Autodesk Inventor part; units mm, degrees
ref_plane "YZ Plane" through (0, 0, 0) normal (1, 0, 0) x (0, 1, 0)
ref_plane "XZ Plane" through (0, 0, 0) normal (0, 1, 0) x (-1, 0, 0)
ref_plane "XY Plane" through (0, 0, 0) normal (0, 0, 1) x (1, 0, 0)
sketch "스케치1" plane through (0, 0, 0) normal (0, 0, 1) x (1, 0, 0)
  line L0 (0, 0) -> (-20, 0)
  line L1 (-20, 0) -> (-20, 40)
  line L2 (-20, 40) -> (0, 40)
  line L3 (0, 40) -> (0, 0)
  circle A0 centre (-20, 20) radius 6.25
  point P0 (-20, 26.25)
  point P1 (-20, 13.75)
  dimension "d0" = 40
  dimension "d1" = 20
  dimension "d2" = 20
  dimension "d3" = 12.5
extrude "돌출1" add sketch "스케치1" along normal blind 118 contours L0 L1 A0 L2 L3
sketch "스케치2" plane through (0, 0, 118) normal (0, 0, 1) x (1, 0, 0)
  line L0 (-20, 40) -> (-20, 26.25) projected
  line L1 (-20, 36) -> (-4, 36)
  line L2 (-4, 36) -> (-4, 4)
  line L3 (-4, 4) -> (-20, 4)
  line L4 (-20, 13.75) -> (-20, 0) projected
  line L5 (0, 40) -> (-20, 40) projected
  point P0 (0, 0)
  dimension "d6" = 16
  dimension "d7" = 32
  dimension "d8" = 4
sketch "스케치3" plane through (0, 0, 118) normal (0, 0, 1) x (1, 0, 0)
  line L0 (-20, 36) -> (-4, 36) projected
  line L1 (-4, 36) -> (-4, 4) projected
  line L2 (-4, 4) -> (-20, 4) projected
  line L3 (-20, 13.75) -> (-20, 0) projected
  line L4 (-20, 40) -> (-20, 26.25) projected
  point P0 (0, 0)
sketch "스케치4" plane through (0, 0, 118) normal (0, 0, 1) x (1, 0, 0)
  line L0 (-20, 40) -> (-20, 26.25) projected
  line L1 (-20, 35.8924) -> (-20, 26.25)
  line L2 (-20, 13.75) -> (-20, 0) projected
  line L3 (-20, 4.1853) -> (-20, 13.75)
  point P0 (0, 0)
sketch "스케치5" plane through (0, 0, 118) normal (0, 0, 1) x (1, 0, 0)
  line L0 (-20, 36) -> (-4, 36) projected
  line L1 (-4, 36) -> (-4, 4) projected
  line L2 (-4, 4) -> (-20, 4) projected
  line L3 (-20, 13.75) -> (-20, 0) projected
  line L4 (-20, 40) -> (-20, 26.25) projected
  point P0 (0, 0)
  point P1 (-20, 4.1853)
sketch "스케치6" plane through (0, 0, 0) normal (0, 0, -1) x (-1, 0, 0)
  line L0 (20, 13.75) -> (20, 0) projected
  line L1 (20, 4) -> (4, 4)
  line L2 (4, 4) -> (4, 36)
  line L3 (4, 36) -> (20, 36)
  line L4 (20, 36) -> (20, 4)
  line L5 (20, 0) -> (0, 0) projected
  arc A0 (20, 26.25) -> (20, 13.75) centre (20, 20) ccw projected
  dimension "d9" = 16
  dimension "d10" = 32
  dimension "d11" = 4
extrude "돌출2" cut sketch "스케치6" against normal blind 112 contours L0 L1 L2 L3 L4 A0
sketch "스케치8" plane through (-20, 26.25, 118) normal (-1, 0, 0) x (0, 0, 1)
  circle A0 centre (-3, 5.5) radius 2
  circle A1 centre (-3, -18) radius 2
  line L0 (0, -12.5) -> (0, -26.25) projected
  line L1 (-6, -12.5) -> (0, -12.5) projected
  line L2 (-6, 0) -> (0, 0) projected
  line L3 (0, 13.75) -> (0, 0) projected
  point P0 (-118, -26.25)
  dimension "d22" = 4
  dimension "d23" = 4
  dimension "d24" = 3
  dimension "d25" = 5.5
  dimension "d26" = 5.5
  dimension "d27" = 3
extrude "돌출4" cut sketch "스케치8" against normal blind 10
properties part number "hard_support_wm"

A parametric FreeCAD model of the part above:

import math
import FreeCAD as App
import Part
import Sketcher

doc = App.newDocument("Part")
params = doc.addObject("Spreadsheet::Sheet", "Params")
for row, (alias, value) in enumerate([
    ("sketch1_width", "20 mm"),
    ("sketch1_height", "40 mm"),
    ("sketch1_radius", "6.25 mm"),
    ("pad1_length", "118 mm"),
    ("sketch2_width", "16 mm"),
    ("sketch2_height", "32 mm"),
    ("sketch2_radius", "6.25 mm"),
    ("pocket1_length", "112 mm"),
    ("sketch3_diameter", "4 mm"),
    ("pocket2_length", "10 mm"),
], start=1):
    params.set(f"A{row}", alias)
    params.set(f"B{row}", "=" + value)
    params.setAlias(f"B{row}", alias)

body = doc.addObject("PartDesign::Body", "Body")

# Sketch on XY plane
sketch1 = body.newObject("Sketcher::SketchObject", "Sketch")
sketch1.AttachmentSupport = (doc.getObject("XY_Plane"), [""])
sketch1.MapMode = "FlatFace"
sketch1.addGeometry(Part.LineSegment(App.Vector(-20, 0, 0), App.Vector(0, 0, 0)), False)
sketch1.addGeometry(Part.LineSegment(App.Vector(0, 0, 0), App.Vector(0, 40, 0)), False)
sketch1.addGeometry(Part.LineSegment(App.Vector(0, 40, 0), App.Vector(-20, 40, 0)), False)
sketch1.addGeometry(Part.LineSegment(App.Vector(-20, 40, 0), App.Vector(-20, 26.25, 0)), False)
sketch1.addGeometry(Part.ArcOfCircle(Part.Circle(App.Vector(-20, 20, 0), App.Vector(0, 0, 1), 6.25), math.radians(-90), math.radians(90)), False)
sketch1.addGeometry(Part.LineSegment(App.Vector(-20, 13.75, 0), App.Vector(-20, 0, 0)), False)
sketch1.addConstraint(Sketcher.Constraint("Coincident", 0, 2, 1, 1))
sketch1.addConstraint(Sketcher.Constraint("Coincident", 1, 2, 2, 1))
sketch1.addConstraint(Sketcher.Constraint("Coincident", 2, 2, 3, 1))
sketch1.addConstraint(Sketcher.Constraint("Coincident", 3, 2, 4, 2))
sketch1.addConstraint(Sketcher.Constraint("Coincident", 4, 1, 5, 1))
sketch1.addConstraint(Sketcher.Constraint("Coincident", 5, 2, 0, 1))
sketch1.addConstraint(Sketcher.Constraint("Horizontal", 0))
sketch1.addConstraint(Sketcher.Constraint("Vertical", 1))
sketch1.addConstraint(Sketcher.Constraint("Horizontal", 2))
sketch1.addConstraint(Sketcher.Constraint("Vertical", 3))
sketch1.addConstraint(Sketcher.Constraint("Vertical", 5))
sketch1.addConstraint(Sketcher.Constraint("Coincident", 0, 2, -1, 1))
sketch1.addConstraint(Sketcher.Constraint("Vertical", 4, 3, 2, 2))
sketch1.addConstraint(Sketcher.Constraint("Vertical", 3, 2, 4, 1))
sketch1.addConstraint(Sketcher.Constraint("Equal", 3, 5))
sketch1.addConstraint(Sketcher.Constraint("DistanceX", 0, 1, 0, 2, 20.0))
sketch1.addConstraint(Sketcher.Constraint("DistanceY", 1, 1, 1, 2, 40.0))
sketch1.addConstraint(Sketcher.Constraint("Radius", 4, 6.25))
sketch1.setExpression("Constraints[15]", "Params.sketch1_width")
sketch1.setExpression("Constraints[16]", "Params.sketch1_height")
sketch1.setExpression("Constraints[17]", "Params.sketch1_radius")
pad1 = body.newObject("PartDesign::Pad", "Pad")
pad1.Profile = sketch1
pad1.setExpression("Length", "Params.pad1_length")

# Sketch on XY plane
sketch2 = body.newObject("Sketcher::SketchObject", "Sketch001")
sketch2.AttachmentSupport = (doc.getObject("XY_Plane"), [""])
sketch2.MapMode = "FlatFace"
sketch2.addGeometry(Part.LineSegment(App.Vector(-20, 4, 0), App.Vector(-20, 13.75, 0)), False)
sketch2.addGeometry(Part.ArcOfCircle(Part.Circle(App.Vector(-20, 20, 0), App.Vector(0, 0, 1), 6.25), math.radians(-90), math.radians(90)), False)
sketch2.addGeometry(Part.LineSegment(App.Vector(-20, 26.25, 0), App.Vector(-20, 36, 0)), False)
sketch2.addGeometry(Part.LineSegment(App.Vector(-20, 36, 0), App.Vector(-4, 36, 0)), False)
sketch2.addGeometry(Part.LineSegment(App.Vector(-4, 36, 0), App.Vector(-4, 4, 0)), False)
sketch2.addGeometry(Part.LineSegment(App.Vector(-4, 4, 0), App.Vector(-20, 4, 0)), False)
sketch2.addConstraint(Sketcher.Constraint("Coincident", 0, 2, 1, 1))
sketch2.addConstraint(Sketcher.Constraint("Coincident", 1, 2, 2, 1))
sketch2.addConstraint(Sketcher.Constraint("Coincident", 2, 2, 3, 1))
sketch2.addConstraint(Sketcher.Constraint("Coincident", 3, 2, 4, 1))
sketch2.addConstraint(Sketcher.Constraint("Coincident", 4, 2, 5, 1))
sketch2.addConstraint(Sketcher.Constraint("Coincident", 5, 2, 0, 1))
sketch2.addConstraint(Sketcher.Constraint("Vertical", 0))
sketch2.addConstraint(Sketcher.Constraint("Vertical", 2))
sketch2.addConstraint(Sketcher.Constraint("Horizontal", 3))
sketch2.addConstraint(Sketcher.Constraint("Vertical", 4))
sketch2.addConstraint(Sketcher.Constraint("Horizontal", 5))
sketch2.addConstraint(Sketcher.Constraint("Vertical", 1, 3, 0, 2))
sketch2.addConstraint(Sketcher.Constraint("Vertical", 0, 2, 1, 2))
sketch2.addConstraint(Sketcher.Constraint("Equal", 0, 2))
sketch2.addConstraint(Sketcher.Constraint("DistanceX", 3, 1, 3, 2, 16.0))
sketch2.addConstraint(Sketcher.Constraint("DistanceY", 4, 2, 4, 1, 32.0))
sketch2.addConstraint(Sketcher.Constraint("DistanceX", 3, 2, -1, 1, 4.0))
sketch2.addConstraint(Sketcher.Constraint("DistanceY", -1, 1, 4, 2, 4.0))
sketch2.addConstraint(Sketcher.Constraint("Radius", 1, 6.25))
sketch2.setExpression("Constraints[14]", "Params.sketch2_width")
sketch2.setExpression("Constraints[15]", "Params.sketch2_height")
sketch2.setExpression("Constraints[18]", "Params.sketch2_radius")
pocket1 = body.newObject("PartDesign::Pocket", "Pocket")
pocket1.Profile = sketch2
pocket1.setExpression("Length", "Params.pocket1_length")
pocket1.Reversed = True

# Sketch on YZ plane
sketch3 = body.newObject("Sketcher::SketchObject", "Sketch002")
sketch3.AttachmentSupport = (doc.getObject("YZ_Plane"), [""])
sketch3.MapMode = "FlatFace"
sketch3.AttachmentOffset = App.Placement(App.Vector(0, 0, -20), App.Rotation())
sketch3.addGeometry(Part.Circle(App.Vector(31.75, 115, 0), App.Vector(0, 0, 1), 2), False)
sketch3.addGeometry(Part.Circle(App.Vector(8.25, 115, 0), App.Vector(0, 0, 1), 2), False)
sketch3.addConstraint(Sketcher.Constraint("Equal", 0, 1))
sketch3.addConstraint(Sketcher.Constraint("Horizontal", 0, 3, 1, 3))
sketch3.addConstraint(Sketcher.Constraint("Diameter", 0, 4.0))
sketch3.addConstraint(Sketcher.Constraint("DistanceY", -1, 1, 0, 3, 115.0))
sketch3.addConstraint(Sketcher.Constraint("DistanceX", 1, 3, 0, 3, 23.5))
sketch3.addConstraint(Sketcher.Constraint("DistanceX", -1, 1, 0, 3, 31.75))
sketch3.setExpression("Constraints[2]", "Params.sketch3_diameter")
pocket2 = body.newObject("PartDesign::Pocket", "Pocket001")
pocket2.Profile = sketch3
pocket2.setExpression("Length", "Params.pocket2_length")
pocket2.Reversed = True

doc.recompute()
